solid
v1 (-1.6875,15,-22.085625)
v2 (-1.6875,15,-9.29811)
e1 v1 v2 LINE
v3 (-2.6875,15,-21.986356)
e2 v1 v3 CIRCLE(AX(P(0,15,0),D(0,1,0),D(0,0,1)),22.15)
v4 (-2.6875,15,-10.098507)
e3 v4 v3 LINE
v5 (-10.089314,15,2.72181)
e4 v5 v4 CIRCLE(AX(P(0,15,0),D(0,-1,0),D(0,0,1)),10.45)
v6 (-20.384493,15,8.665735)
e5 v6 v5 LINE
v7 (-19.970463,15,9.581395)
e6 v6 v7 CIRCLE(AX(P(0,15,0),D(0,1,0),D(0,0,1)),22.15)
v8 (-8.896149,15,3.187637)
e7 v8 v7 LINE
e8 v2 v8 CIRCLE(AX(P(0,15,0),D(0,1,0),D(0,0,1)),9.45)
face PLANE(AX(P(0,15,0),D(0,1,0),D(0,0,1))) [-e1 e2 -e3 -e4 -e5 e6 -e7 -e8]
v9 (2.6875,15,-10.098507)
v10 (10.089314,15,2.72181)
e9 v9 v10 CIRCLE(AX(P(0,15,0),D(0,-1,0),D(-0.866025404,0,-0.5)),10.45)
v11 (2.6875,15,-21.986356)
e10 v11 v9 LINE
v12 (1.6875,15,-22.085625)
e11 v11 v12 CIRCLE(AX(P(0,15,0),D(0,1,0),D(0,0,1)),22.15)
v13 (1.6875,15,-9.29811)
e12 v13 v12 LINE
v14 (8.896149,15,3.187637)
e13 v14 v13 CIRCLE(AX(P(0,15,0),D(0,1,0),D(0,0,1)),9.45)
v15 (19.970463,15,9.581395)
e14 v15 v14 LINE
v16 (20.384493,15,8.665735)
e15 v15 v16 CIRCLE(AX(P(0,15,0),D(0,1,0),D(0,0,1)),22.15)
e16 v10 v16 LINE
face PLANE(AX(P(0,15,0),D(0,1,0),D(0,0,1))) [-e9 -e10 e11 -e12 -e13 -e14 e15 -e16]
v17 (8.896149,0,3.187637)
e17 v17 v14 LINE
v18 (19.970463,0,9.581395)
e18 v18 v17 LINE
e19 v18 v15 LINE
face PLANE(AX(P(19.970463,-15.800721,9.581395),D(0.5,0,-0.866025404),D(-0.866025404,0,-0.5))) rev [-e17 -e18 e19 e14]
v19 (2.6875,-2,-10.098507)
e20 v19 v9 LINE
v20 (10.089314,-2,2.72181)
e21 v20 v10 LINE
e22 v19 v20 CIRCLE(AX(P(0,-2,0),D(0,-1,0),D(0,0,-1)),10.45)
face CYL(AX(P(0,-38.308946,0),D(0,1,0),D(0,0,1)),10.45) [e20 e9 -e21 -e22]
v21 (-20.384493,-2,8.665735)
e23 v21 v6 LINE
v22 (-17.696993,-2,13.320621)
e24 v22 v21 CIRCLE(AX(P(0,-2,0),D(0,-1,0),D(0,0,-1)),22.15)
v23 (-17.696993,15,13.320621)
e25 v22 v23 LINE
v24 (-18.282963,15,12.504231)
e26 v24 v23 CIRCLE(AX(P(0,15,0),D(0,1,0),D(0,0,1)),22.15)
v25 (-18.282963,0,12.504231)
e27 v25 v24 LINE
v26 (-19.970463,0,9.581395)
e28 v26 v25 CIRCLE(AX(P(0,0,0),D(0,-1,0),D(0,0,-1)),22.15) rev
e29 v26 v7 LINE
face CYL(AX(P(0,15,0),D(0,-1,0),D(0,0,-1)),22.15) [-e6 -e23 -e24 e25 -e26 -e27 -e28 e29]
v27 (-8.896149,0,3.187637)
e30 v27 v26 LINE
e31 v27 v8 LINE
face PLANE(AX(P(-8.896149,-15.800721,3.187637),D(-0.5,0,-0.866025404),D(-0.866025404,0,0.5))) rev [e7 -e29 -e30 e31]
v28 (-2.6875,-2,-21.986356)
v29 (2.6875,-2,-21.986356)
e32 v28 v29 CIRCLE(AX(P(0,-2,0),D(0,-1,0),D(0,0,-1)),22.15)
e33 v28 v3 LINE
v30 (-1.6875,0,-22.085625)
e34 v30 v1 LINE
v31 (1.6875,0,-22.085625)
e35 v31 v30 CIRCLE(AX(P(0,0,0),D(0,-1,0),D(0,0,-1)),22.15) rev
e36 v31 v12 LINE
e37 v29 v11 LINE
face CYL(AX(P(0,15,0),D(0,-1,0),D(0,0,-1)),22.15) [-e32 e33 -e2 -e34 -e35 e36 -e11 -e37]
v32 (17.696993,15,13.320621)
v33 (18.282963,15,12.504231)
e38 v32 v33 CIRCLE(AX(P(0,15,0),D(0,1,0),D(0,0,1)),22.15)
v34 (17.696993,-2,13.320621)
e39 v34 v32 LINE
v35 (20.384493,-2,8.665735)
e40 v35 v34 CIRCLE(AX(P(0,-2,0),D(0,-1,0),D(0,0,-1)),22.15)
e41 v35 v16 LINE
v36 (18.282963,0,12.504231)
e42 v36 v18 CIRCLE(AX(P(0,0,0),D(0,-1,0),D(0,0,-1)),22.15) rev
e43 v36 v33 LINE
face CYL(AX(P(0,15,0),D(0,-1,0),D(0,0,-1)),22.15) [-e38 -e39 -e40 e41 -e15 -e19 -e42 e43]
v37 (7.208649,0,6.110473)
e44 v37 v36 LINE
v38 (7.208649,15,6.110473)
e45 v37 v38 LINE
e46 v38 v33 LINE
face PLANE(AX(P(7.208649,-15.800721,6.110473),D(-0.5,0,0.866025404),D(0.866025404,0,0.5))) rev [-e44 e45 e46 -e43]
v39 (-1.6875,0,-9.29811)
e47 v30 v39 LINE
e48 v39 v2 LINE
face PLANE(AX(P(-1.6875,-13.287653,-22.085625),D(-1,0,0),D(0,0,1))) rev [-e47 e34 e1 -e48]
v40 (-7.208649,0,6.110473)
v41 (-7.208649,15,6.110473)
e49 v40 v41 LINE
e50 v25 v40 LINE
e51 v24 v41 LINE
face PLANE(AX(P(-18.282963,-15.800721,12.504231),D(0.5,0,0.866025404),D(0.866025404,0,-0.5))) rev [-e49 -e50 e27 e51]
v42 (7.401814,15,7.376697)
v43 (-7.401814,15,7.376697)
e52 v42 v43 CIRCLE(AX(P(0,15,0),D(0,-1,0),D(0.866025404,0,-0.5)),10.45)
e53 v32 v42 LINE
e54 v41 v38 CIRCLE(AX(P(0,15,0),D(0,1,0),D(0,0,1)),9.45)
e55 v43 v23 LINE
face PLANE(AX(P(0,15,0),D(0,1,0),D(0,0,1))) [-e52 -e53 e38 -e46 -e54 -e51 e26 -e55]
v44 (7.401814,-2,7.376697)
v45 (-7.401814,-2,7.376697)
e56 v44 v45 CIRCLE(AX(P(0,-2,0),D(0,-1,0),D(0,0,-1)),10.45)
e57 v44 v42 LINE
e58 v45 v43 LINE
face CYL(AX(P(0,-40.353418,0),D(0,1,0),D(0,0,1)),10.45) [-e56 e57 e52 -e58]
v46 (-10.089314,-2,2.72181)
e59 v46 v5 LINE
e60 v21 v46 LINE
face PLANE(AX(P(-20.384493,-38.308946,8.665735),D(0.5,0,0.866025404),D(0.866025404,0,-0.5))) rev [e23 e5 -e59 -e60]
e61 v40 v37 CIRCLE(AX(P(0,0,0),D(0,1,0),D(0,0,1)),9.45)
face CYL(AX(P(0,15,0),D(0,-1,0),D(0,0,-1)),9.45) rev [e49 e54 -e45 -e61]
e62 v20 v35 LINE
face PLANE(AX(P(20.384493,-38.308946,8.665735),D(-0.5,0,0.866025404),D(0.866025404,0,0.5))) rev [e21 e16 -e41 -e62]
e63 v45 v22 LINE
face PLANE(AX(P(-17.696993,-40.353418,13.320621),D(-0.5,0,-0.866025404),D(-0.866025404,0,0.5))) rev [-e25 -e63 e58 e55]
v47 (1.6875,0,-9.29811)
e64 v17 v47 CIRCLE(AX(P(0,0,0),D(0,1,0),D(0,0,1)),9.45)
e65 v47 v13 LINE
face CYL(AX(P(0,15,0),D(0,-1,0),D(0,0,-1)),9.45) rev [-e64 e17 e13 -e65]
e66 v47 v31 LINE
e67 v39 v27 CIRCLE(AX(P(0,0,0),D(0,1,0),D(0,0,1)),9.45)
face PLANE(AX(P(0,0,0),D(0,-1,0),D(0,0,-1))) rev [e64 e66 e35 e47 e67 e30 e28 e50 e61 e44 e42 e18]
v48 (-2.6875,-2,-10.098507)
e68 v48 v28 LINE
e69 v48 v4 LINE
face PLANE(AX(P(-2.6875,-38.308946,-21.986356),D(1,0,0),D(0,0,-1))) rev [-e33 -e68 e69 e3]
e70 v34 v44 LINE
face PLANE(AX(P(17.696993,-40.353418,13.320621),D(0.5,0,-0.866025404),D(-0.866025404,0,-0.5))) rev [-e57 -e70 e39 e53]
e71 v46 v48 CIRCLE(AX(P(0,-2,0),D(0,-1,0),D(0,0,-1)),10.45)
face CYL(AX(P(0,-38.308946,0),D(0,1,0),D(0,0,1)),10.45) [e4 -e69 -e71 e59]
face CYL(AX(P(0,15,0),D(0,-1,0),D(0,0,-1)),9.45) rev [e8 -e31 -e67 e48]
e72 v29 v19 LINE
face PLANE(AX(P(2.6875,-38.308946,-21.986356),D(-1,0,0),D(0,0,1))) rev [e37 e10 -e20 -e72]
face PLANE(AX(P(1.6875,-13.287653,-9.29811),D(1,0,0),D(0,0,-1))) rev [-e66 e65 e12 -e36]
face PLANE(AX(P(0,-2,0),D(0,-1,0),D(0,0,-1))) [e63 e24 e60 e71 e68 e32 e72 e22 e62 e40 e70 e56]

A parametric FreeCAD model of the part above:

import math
import FreeCAD as App
import Part
import Sketcher
Q = App.Units.Quantity

doc = App.newDocument("Part")
body = doc.addObject("PartDesign::Body", "Body")

# Sketch on XZ plane
sketch1 = body.newObject("Sketcher::SketchObject", "Sketch")
sketch1.AttachmentSupport = (doc.getObject("XZ_Plane"), [""])
sketch1.MapMode = "FlatFace"
sketch1.addGeometry([
    Part.Circle(App.Vector(0, 0, 0), App.Vector(0, 0, 1), 22),
    Part.Circle(App.Vector(0, 0, 0), App.Vector(0, 0, 1), 9),
], False)
sketch1.addConstraint([
    Sketcher.Constraint("Coincident", 0, 3, -1, 1),
    Sketcher.Constraint("Coincident", 1, 3, -1, 1),
    Sketcher.Constraint("Diameter", 0, Q("44.3 mm")),
    Sketcher.Constraint("Diameter", 1, Q("18.9 mm")),
])
pad1 = body.newObject("PartDesign::Pad", "Pad")
pad1.Profile = sketch1
pad1.Length = 15
pad1.Reversed = True

# Sketch on XZ plane
sketch2 = body.newObject("Sketcher::SketchObject", "Sketch001")
sketch2.AttachmentSupport = (doc.getObject("XZ_Plane"), [""])
sketch2.MapMode = "FlatFace"
sketch2.addGeometry(Part.Circle(App.Vector(0, 0, 0), App.Vector(0, 0, 1), 22), False)
sketch2.addConstraint([
    Sketcher.Constraint("Coincident", 0, 3, -1, 1),
    Sketcher.Constraint("Diameter", 0, Q("44.3 mm")),
])
pad2 = body.newObject("PartDesign::Pad", "Pad001")
pad2.Profile = sketch2
pad2.Length = 2

# Sketch on XZ plane
sketch3 = body.newObject("Sketcher::SketchObject", "Sketch002")
sketch3.AttachmentSupport = (doc.getObject("XZ_Plane"), [""])
sketch3.MapMode = "FlatFace"
sketch3.AttachmentOffset = App.Placement(App.Vector(0, 0, -15), App.Rotation())
sketch3.addGeometry([
    Part.LineSegment(App.Vector(-1.7, -22.1, 0), App.Vector(-1.7, -9.3, 0)),
    Part.ArcOfCircle(Part.Circle(App.Vector(0, 0, 0), App.Vector(0, 0, 1), 9.5), math.radians(-100), math.radians(-80)),
    Part.LineSegment(App.Vector(1.7, -9.3, 0), App.Vector(1.7, -22.1, 0)),
    Part.ArcOfCircle(Part.Circle(App.Vector(0, 0, 0), App.Vector(0, 0, 1), 22.1), math.radians(-94.37), math.radians(-85.63)),
], False)
sketch3.addConstraint([
    Sketcher.Constraint("Coincident", 0, 2, 1, 1),
    Sketcher.Constraint("Coincident", 1, 2, 2, 1),
    Sketcher.Constraint("Coincident", 2, 2, 3, 2),
    Sketcher.Constraint("Coincident", 3, 1, 0, 1),
    Sketcher.Constraint("Vertical", 0),
    Sketcher.Constraint("Vertical", 2),
    Sketcher.Constraint("Coincident", 1, 3, -1, 1),
    Sketcher.Constraint("Coincident", 3, 3, -1, 1),
    Sketcher.Constraint("Horizontal", 0, 2, 1, 2),
    Sketcher.Constraint("Radius", 1, Q("9.45 mm")),
    Sketcher.Constraint("Radius", 3, Q("22.15 mm")),
    Sketcher.Constraint("DistanceX", 0, 2, 1, 2, Q("3.375 mm")),
])
pocket1 = body.newObject("PartDesign::Pocket", "Pocket")
pocket1.Profile = sketch3
pocket1.Length = 15
pocket1.Reversed = True
doc.recompute()

polarpattern = body.newObject("PartDesign::PolarPattern", "PolarPattern")
polarpattern.Originals = [pocket1]
polarpattern.Axis = (doc.getObject("Y_Axis"), [""])
polarpattern.Angle = 360
polarpattern.Occurrences = 3
body.Tip = polarpattern

# Sketch on XZ plane
sketch4 = body.newObject("Sketcher::SketchObject", "Sketch003")
sketch4.AttachmentSupport = (doc.getObject("XZ_Plane"), [""])
sketch4.MapMode = "FlatFace"
sketch4.AttachmentOffset = App.Placement(App.Vector(0, 0, -15), App.Rotation())
sketch4.addGeometry([
    Part.LineSegment(App.Vector(-20, 9, 0), App.Vector(-10, 3, 0)),
    Part.ArcOfCircle(Part.Circle(App.Vector(0, 0, 0), App.Vector(0, 0, 1), 10), math.radians(165), math.radians(255)),
    Part.LineSegment(App.Vector(-3, -10, 0), App.Vector(-3, -22, 0)),
    Part.ArcOfCircle(Part.Circle(App.Vector(0, 0, 0), App.Vector(0, 0, 1), 22), math.radians(157), math.radians(263)),
], False)
sketch4.addConstraint([
    Sketcher.Constraint("Coincident", 0, 2, 1, 1),
    Sketcher.Constraint("Coincident", 1, 2, 2, 1),
    Sketcher.Constraint("Coincident", 2, 2, 3, 2),
    Sketcher.Constraint("Coincident", 3, 1, 0, 1),
    Sketcher.Constraint("Vertical", 2),
    Sketcher.Constraint("Coincident", 1, 3, -1, 1),
    Sketcher.Constraint("Coincident", 3, 3, -1, 1),
    Sketcher.Constraint("Angle", 0, Q("-30 deg")),
    Sketcher.Constraint("Radius", 1, Q("10.45 mm")),
    Sketcher.Constraint("Radius", 3, Q("22.15 mm")),
    Sketcher.Constraint("DistanceY", 2, 2, 2, 1, Q("11.887849 mm")),
    Sketcher.Constraint("Distance", 0, Q("11.887849 mm")),
])
pocket2 = body.newObject("PartDesign::Pocket", "Pocket001")
pocket2.Profile = sketch4
pocket2.Length = 17
pocket2.Reversed = True
doc.recompute()

polarpattern2 = body.newObject("PartDesign::PolarPattern", "PolarPattern001")
polarpattern2.Originals = [pocket2]
polarpattern2.Axis = (doc.getObject("Y_Axis"), [""])
polarpattern2.Angle = 360
polarpattern2.Occurrences = 3
body.Tip = polarpattern2

doc.recompute()
